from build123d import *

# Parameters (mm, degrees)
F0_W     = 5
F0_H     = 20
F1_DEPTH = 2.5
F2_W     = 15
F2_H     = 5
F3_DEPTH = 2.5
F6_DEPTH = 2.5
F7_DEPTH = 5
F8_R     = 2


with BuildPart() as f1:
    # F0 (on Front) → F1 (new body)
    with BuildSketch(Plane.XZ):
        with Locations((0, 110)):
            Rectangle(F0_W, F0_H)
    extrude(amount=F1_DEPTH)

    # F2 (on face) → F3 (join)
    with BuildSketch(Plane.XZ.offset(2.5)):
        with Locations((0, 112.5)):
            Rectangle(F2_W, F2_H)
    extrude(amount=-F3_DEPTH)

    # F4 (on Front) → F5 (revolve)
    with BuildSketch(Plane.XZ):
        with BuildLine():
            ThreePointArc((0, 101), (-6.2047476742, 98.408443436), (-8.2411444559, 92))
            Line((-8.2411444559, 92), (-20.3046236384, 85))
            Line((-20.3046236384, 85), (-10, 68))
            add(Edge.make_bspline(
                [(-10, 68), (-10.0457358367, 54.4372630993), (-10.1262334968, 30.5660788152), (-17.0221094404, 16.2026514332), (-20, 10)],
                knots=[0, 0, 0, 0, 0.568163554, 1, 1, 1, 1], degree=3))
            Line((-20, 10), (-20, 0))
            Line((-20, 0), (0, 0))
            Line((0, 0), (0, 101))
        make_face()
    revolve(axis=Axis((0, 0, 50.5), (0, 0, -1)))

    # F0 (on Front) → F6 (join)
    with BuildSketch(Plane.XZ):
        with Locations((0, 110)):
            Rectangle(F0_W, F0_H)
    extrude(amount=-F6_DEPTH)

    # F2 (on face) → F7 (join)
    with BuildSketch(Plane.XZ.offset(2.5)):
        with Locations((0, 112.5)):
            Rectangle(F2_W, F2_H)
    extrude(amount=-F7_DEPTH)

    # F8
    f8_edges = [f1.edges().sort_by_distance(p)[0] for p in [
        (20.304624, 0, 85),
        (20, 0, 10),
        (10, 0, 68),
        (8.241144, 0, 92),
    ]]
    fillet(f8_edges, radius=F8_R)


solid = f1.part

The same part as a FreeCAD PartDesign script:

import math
import FreeCAD as App
import Part
import Sketcher


def edges_at(feature, points):
    """Names of the edges that pass closest to the given points."""
    edges = feature.Shape.Edges
    near = lambda p: min(range(len(edges)), key=lambda i: edges[i].distToShape(Part.Vertex(*p))[0])
    return sorted({f"Edge{near(p) + 1}" for p in points})


def add_polygon(sketch, points):
    """Adds a closed chain of lines whose ends are joined by coincident constraints."""
    first, n = sketch.GeometryCount, len(points)
    for a, b in zip(points, points[1:] + points[:1]):
        sketch.addGeometry(Part.LineSegment(App.Vector(*a, 0), App.Vector(*b, 0)), False)
    for i in range(n):
        sketch.addConstraint(Sketcher.Constraint("Coincident", first + i, 2, first + (i + 1) % n, 1))

doc = App.newDocument("Part")
body = doc.addObject("PartDesign::Body", "Body")

sketch1 = body.newObject("Sketcher::SketchObject", "Sketch")
sketch1.AttachmentSupport = (doc.getObject("XZ_Plane"), [""])
sketch1.MapMode = "FlatFace"
add_polygon(sketch1, [(-2.5, 120), (-2.5, 100), (2.5, 100), (2.5, 120)])
sketch1.addConstraint([
    Sketcher.Constraint("Vertical", 0),
    Sketcher.Constraint("Horizontal", 1),
    Sketcher.Constraint("Vertical", 2),
    Sketcher.Constraint("Horizontal", 3),
    Sketcher.Constraint("DistanceX", 1, 1, 1, 2, 5.0),
    Sketcher.Constraint("DistanceY", 0, 2, 0, 1, 20.0),
    Sketcher.Constraint("DistanceY", -1, 1, 0, 2, 100.0),
    Sketcher.Constraint("DistanceX", 0, 2, -1, 1, 2.5),
])
pad1 = body.newObject("PartDesign::Pad", "Pad")
pad1.Profile = sketch1
pad1.Length = 2.5

sketch2 = body.newObject("Sketcher::SketchObject", "Sketch001")
sketch2.AttachmentSupport = (doc.getObject("XZ_Plane"), [""])
sketch2.MapMode = "FlatFace"
sketch2.AttachmentOffset = App.Placement(App.Vector(0, 0, 2.5), App.Rotation())
add_polygon(sketch2, [(-7.5, 115), (-7.5, 110), (7.5, 110), (7.5, 115)])
sketch2.addConstraint([
    Sketcher.Constraint("Vertical", 0),
    Sketcher.Constraint("Horizontal", 1),
    Sketcher.Constraint("Vertical", 2),
    Sketcher.Constraint("Horizontal", 3),
    Sketcher.Constraint("DistanceX", 1, 1, 1, 2, 15.0),
    Sketcher.Constraint("DistanceY", 0, 2, 0, 1, 5.0),
    Sketcher.Constraint("DistanceY", -1, 1, 0, 2, 110.0),
    Sketcher.Constraint("DistanceX", 0, 2, -1, 1, 7.5),
])
pad2 = body.newObject("PartDesign::Pad", "Pad001")
pad2.Profile = sketch2
pad2.Length = 2.5
pad2.Reversed = True

sketch3 = body.newObject("Sketcher::SketchObject", "Sketch002")
sketch3.AttachmentSupport = (doc.getObject("XZ_Plane"), [""])
sketch3.MapMode = "FlatFace"
sketch3.addGeometry([
    Part.ArcOfCircle(Part.Circle(App.Vector(-0.304624, 93.005802, 0), App.Vector(0, 0, 1), 8), math.radians(87.817766), math.radians(187.222639)),
    Part.LineSegment(App.Vector(-8.241144, 92, 0), App.Vector(-20.304624, 85, 0)),
    Part.LineSegment(App.Vector(-20.304624, 85, 0), App.Vector(-10, 68, 0)),
    Part.BSplineCurve([App.Vector(-10, 68, 0), App.Vector(-10.045736, 54.437263, 0), App.Vector(-10.126233, 30.566079, 0), App.Vector(-17.022109, 16.202651, 0), App.Vector(-20, 10, 0)], [4, 1, 4], [0, 0.568163554, 1], False, 3, [1, 1, 1, 1, 1], False),
    Part.LineSegment(App.Vector(-20, 10, 0), App.Vector(-20, 0, 0)),
    Part.LineSegment(App.Vector(-20, 0, 0), App.Vector(0, 0, 0)),
    Part.LineSegment(App.Vector(0, 0, 0), App.Vector(0, 101, 0)),
], False)
sketch3.addConstraint([
    Sketcher.Constraint("Block", 3),
    Sketcher.Constraint("Coincident", 0, 2, 1, 1),
    Sketcher.Constraint("Coincident", 1, 2, 2, 1),
    Sketcher.Constraint("Coincident", 2, 2, 3, 1),
    Sketcher.Constraint("Coincident", 3, 2, 4, 1),
    Sketcher.Constraint("Coincident", 4, 2, 5, 1),
    Sketcher.Constraint("Coincident", 5, 2, 6, 1),
    Sketcher.Constraint("Coincident", 6, 2, 0, 1),
    Sketcher.Constraint("Vertical", 4),
    Sketcher.Constraint("Horizontal", 5),
    Sketcher.Constraint("Vertical", 6),
    Sketcher.Constraint("Coincident", 5, 2, -1, 1),
    Sketcher.Constraint("Radius", 0, 8.0),
    Sketcher.Constraint("DistanceY", 6, 1, 6, 2, 101.0),
    Sketcher.Constraint("DistanceY", -1, 1, 0, 2, 92.0),
    Sketcher.Constraint("DistanceY", -1, 1, 1, 2, 85.0),
    Sketcher.Constraint("DistanceX", 1, 2, 0, 3, 20.0),
    Sketcher.Constraint("DistanceY", -1, 1, 0, 3, 93.005802),
])
revolution = body.newObject("PartDesign::Revolution", "Revolution")
revolution.Profile = sketch3
revolution.ReferenceAxis = (sketch3, ["V_Axis"])
revolution.Angle = 360

sketch4 = body.newObject("Sketcher::SketchObject", "Sketch003")
sketch4.AttachmentSupport = (doc.getObject("XZ_Plane"), [""])
sketch4.MapMode = "FlatFace"
add_polygon(sketch4, [(-2.5, 120), (-2.5, 100), (2.5, 100), (2.5, 120)])
sketch4.addConstraint([
    Sketcher.Constraint("Vertical", 0),
    Sketcher.Constraint("Horizontal", 1),
    Sketcher.Constraint("Vertical", 2),
    Sketcher.Constraint("Horizontal", 3),
    Sketcher.Constraint("DistanceX", 1, 1, 1, 2, 5.0),
    Sketcher.Constraint("DistanceY", 0, 2, 0, 1, 20.0),
    Sketcher.Constraint("DistanceY", -1, 1, 0, 2, 100.0),
    Sketcher.Constraint("DistanceX", 0, 2, -1, 1, 2.5),
])
pad3 = body.newObject("PartDesign::Pad", "Pad002")
pad3.Profile = sketch4
pad3.Length = 2.5
pad3.Reversed = True

sketch5 = body.newObject("Sketcher::SketchObject", "Sketch004")
sketch5.AttachmentSupport = (doc.getObject("XZ_Plane"), [""])
sketch5.MapMode = "FlatFace"
sketch5.AttachmentOffset = App.Placement(App.Vector(0, 0, 2.5), App.Rotation())
add_polygon(sketch5, [(-7.5, 115), (-7.5, 110), (7.5, 110), (7.5, 115)])
sketch5.addConstraint([
    Sketcher.Constraint("Vertical", 0),
    Sketcher.Constraint("Horizontal", 1),
    Sketcher.Constraint("Vertical", 2),
    Sketcher.Constraint("Horizontal", 3),
    Sketcher.Constraint("DistanceX", 1, 1, 1, 2, 15.0),
    Sketcher.Constraint("DistanceY", 0, 2, 0, 1, 5.0),
    Sketcher.Constraint("DistanceY", -1, 1, 0, 2, 110.0),
    Sketcher.Constraint("DistanceX", 0, 2, -1, 1, 7.5),
])
pad4 = body.newObject("PartDesign::Pad", "Pad003")
pad4.Profile = sketch5
pad4.Length = 5
pad4.Reversed = True
doc.recompute()

fillet = body.newObject("PartDesign::Fillet", "Fillet")
fillet.Base = (pad4, edges_at(pad4, [
    (20.305, 0, 85),
    (20, 0, 10),
    (10, 0, 68),
    (8.241, 0, 92),
]))
fillet.Radius = 2

doc.recompute()
